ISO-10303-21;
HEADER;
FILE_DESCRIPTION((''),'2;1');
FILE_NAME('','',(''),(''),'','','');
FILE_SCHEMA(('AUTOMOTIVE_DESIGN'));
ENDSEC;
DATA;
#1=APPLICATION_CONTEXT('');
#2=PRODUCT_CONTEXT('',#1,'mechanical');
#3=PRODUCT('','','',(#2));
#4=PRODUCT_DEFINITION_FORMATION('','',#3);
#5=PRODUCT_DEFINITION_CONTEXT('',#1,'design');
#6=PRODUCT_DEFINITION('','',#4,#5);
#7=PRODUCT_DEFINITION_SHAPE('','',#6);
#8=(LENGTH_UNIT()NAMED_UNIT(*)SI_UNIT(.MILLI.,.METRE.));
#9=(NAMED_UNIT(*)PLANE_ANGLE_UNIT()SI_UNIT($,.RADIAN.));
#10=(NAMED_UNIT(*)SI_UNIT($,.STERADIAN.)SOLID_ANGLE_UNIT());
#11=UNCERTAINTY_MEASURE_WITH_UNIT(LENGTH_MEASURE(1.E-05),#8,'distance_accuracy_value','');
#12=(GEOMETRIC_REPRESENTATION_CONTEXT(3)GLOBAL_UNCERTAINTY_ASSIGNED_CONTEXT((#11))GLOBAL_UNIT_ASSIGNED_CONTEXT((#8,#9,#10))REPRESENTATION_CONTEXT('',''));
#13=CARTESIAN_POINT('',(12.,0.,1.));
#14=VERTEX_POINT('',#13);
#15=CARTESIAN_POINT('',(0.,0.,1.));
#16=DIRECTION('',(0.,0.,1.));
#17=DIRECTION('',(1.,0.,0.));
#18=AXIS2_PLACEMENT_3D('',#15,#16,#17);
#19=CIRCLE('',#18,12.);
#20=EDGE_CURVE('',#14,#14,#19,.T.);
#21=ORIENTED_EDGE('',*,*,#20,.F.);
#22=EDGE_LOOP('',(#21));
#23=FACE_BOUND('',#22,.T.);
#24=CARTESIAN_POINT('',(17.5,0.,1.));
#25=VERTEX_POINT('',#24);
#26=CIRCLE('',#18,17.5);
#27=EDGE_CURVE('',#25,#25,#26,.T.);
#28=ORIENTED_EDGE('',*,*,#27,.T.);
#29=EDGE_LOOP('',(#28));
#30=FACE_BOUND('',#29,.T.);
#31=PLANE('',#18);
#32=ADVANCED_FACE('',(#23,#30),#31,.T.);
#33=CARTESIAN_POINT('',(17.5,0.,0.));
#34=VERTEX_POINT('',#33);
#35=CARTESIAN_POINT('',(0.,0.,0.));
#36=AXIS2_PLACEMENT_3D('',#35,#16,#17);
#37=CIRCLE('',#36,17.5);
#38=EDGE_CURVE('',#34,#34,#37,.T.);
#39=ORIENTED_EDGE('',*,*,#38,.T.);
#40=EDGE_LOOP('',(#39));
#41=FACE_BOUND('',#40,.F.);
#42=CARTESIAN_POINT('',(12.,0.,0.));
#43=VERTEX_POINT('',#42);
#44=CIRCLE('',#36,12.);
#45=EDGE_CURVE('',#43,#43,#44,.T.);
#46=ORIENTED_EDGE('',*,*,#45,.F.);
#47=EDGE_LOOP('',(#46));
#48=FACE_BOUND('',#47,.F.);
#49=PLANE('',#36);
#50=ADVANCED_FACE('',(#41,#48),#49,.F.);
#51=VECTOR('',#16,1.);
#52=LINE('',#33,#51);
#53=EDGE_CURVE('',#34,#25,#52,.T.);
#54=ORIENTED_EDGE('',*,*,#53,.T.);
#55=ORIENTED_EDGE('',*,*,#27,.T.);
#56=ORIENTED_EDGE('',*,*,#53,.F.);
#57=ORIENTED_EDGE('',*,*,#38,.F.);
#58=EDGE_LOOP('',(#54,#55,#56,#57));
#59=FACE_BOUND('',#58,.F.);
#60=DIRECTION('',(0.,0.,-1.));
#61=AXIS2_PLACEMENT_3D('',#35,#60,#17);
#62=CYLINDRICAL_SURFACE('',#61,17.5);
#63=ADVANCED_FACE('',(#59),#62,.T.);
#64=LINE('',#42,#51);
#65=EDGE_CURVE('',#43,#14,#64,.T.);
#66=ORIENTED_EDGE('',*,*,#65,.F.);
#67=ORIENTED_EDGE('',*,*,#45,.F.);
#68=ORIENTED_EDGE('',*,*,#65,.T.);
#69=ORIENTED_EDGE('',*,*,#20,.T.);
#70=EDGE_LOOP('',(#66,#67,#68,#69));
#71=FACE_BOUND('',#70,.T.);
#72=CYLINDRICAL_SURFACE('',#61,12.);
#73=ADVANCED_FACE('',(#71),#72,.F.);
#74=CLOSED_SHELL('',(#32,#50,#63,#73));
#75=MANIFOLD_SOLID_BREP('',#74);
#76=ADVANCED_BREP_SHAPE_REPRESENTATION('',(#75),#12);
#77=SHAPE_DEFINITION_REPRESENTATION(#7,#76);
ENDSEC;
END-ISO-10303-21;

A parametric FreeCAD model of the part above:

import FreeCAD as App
import Part
import Sketcher
from FreeCAD import Vector

doc = App.newDocument("Part")
params = doc.addObject("Spreadsheet::Sheet", "Params")
for row, (alias, value) in enumerate([
    ("sketch1_diameter", "35 mm"),
    ("sketch1_diameter2", "24 mm"),
    ("pad1_length", "1 mm"),
], start=1):
    params.set(f"A{row}", alias)
    params.set(f"B{row}", "=" + value)
    params.setAlias(f"B{row}", alias)

body = doc.addObject("PartDesign::Body", "Body")

sketch1 = body.newObject("Sketcher::SketchObject", "Sketch")
sketch1.AttachmentSupport = (doc.getObject("XY_Plane"), [""])
sketch1.MapMode = "FlatFace"
sketch1.addGeometry(Part.Circle(Vector(0, 0, 0), Vector(0, 0, 1), 18), False)
sketch1.addGeometry(Part.Circle(Vector(0, 0, 0), Vector(0, 0, 1), 12), False)
sketch1.addConstraint(Sketcher.Constraint("Coincident", 0, 3, -1, 1))
sketch1.addConstraint(Sketcher.Constraint("Coincident", 1, 3, -1, 1))
sketch1.addConstraint(Sketcher.Constraint("Diameter", 0, 35.0))
sketch1.addConstraint(Sketcher.Constraint("Diameter", 1, 24.0))
sketch1.setExpression("Constraints[2]", "Params.sketch1_diameter")
sketch1.setExpression("Constraints[3]", "Params.sketch1_diameter2")
pad1 = body.newObject("PartDesign::Pad", "Pad")
pad1.Profile = sketch1
pad1.setExpression("Length", "Params.pad1_length")

doc.recompute()
